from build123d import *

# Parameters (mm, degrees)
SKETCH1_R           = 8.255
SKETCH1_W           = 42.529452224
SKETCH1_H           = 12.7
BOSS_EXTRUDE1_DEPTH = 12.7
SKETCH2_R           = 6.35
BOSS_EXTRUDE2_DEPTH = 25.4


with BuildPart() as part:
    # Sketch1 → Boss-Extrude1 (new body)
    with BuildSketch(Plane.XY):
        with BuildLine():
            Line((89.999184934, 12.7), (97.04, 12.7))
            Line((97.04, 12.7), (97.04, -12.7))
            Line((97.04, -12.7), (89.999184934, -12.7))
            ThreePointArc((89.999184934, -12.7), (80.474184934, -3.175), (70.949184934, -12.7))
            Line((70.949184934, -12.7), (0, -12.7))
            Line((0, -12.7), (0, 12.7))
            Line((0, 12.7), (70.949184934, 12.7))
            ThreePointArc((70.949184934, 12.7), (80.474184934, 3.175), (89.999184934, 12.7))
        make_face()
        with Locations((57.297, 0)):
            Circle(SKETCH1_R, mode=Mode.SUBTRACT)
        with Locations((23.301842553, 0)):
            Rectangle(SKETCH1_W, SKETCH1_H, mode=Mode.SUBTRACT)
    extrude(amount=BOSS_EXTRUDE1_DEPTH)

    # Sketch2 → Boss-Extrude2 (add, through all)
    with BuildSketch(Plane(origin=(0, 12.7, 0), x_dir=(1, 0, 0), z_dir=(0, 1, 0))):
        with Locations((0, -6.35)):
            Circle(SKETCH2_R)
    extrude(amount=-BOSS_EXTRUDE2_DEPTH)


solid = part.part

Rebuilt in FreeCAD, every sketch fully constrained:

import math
import FreeCAD as App
import Part
import Sketcher
Q = App.Units.Quantity


def add_polygon(sketch, points):
    """Adds a closed chain of lines whose ends are joined by coincident constraints."""
    first, n = sketch.GeometryCount, len(points)
    for a, b in zip(points, points[1:] + points[:1]):
        sketch.addGeometry(Part.LineSegment(App.Vector(*a, 0), App.Vector(*b, 0)), False)
    for i in range(n):
        sketch.addConstraint(Sketcher.Constraint("Coincident", first + i, 2, first + (i + 1) % n, 1))

doc = App.newDocument("Part")
params = doc.addObject("Spreadsheet::Sheet", "Params")
for row, (alias, value) in enumerate([
    ("sketch1_diameter", "0.65 in"),
    ("sketch1_height", "1 in"),
    ("sketch1_height2", "0.5 in"),
    ("sketch1_radius", "0.375 in"),
    ("pad1_length", "0.5 in"),
    ("sketch2_diameter", "0.5 in"),
], start=1):
    params.set(f"A{row}", alias)
    params.set(f"B{row}", "=" + value)
    params.setAlias(f"B{row}", alias)

body = doc.addObject("PartDesign::Body", "Body")

# Sketch on XY plane
sketch1 = doc.addObject("Sketcher::SketchObject", "Sketch")
body.addObject(sketch1)
sketch1.AttachmentSupport = (doc.XY_Plane, [""])
sketch1.MapMode = "FlatFace"
sketch1.addGeometry(Part.LineSegment(App.Vector(97, 13, 0), App.Vector(90, 13, 0)), False)  # 0
sketch1.addGeometry(Part.ArcOfCircle(Part.Circle(App.Vector(80, 13, 0), App.Vector(0, 0, 1), 10), math.radians(180), math.radians(360)), False)  # 1
sketch1.addGeometry(Part.LineSegment(App.Vector(71, 13, 0), App.Vector(0, 13, 0)), False)  # 2
sketch1.addGeometry(Part.LineSegment(App.Vector(0, 13, 0), App.Vector(0, -13, 0)), False)  # 3
sketch1.addGeometry(Part.LineSegment(App.Vector(0, -13, 0), App.Vector(71, -13, 0)), False)  # 4
sketch1.addGeometry(Part.ArcOfCircle(Part.Circle(App.Vector(80, -13, 0), App.Vector(0, 0, 1), 10), math.radians(0), math.radians(180)), False)  # 5
sketch1.addGeometry(Part.LineSegment(App.Vector(90, -13, 0), App.Vector(97, -13, 0)), False)  # 6
sketch1.addGeometry(Part.LineSegment(App.Vector(97, -13, 0), App.Vector(97, 13, 0)), False)  # 7
sketch1.addGeometry(Part.Circle(App.Vector(57, 0, 0), App.Vector(0, 0, 1), 8), False)  # 8
add_polygon(sketch1, [(2, -6), (2, 6), (45, 6), (45, -6)])  # lines 9-12
sketch1.addConstraint([
    Sketcher.Constraint("Coincident", 0, 2, 1, 2),
    Sketcher.Constraint("Coincident", 1, 1, 2, 1),
    Sketcher.Constraint("Coincident", 2, 2, 3, 1),
    Sketcher.Constraint("Coincident", 3, 2, 4, 1),
    Sketcher.Constraint("Coincident", 4, 2, 5, 2),
    Sketcher.Constraint("Coincident", 5, 1, 6, 1),
    Sketcher.Constraint("Coincident", 6, 2, 7, 1),
    Sketcher.Constraint("Coincident", 7, 2, 0, 1),
    Sketcher.Constraint("Horizontal", 0),
    Sketcher.Constraint("Horizontal", 2),
    Sketcher.Constraint("Vertical", 3),
    Sketcher.Constraint("Horizontal", 4),
    Sketcher.Constraint("Horizontal", 6),
    Sketcher.Constraint("Vertical", 7),
    Sketcher.Constraint("Vertical", 9),
    Sketcher.Constraint("Horizontal", 10),
    Sketcher.Constraint("Vertical", 11),
    Sketcher.Constraint("Horizontal", 12),
    Sketcher.Constraint("Equal", 1, 5),
    Sketcher.Constraint("Symmetric", 2, 2, 3, 2, -1, 1),
    Sketcher.Constraint("Symmetric", 1, 3, 5, 3, -1),
    Sketcher.Constraint("PointOnObject", 8, 3, -1),
    Sketcher.Constraint("Horizontal", 1, 3, 0, 2),
    Sketcher.Constraint("Horizontal", 0, 2, 1, 1),
    Sketcher.Constraint("Horizontal", 4, 2, 5, 1),
    Sketcher.Constraint("Diameter", 8, Q("0.65 in")),
    Sketcher.Constraint("DistanceY", 3, 2, 3, 1, Q("1 in")),
    Sketcher.Constraint("DistanceY", 9, 1, 9, 2, Q("0.5 in")),
    Sketcher.Constraint("Radius", 1, Q("0.375 in")),
    Sketcher.Constraint("DistanceY", -1, 1, 9, 2, Q("0.25 in")),
    Sketcher.Constraint("DistanceX", -1, 1, 8, 3, Q("57.297 mm")),
    Sketcher.Constraint("DistanceX", -1, 1, 6, 2, Q("97.04 mm")),
    Sketcher.Constraint("DistanceX", 0, 2, 0, 1, Q("7.040815 mm")),
    Sketcher.Constraint("DistanceX", 10, 1, 10, 2, Q("42.529452 mm")),
    Sketcher.Constraint("DistanceX", -1, 1, 10, 2, Q("44.566569 mm")),
])
sketch1.setExpression("Constraints[29]", "Params.sketch1_diameter")
sketch1.setExpression("Constraints[30]", "Params.sketch1_height")
sketch1.setExpression("Constraints[31]", "Params.sketch1_height2")
sketch1.setExpression("Constraints[32]", "Params.sketch1_radius")
pad1 = doc.addObject("PartDesign::Pad", "Pad")
body.addObject(pad1)
pad1.Profile = sketch1
pad1.setExpression("Length", "Params.pad1_length")

# Sketch on XZ plane
sketch2 = doc.addObject("Sketcher::SketchObject", "Sketch001")
body.addObject(sketch2)
sketch2.AttachmentSupport = (doc.XZ_Plane, [""])
sketch2.MapMode = "FlatFace"
sketch2.AttachmentOffset = App.Placement(App.Vector(0, 0, -0.5 * 25.4), App.Rotation())
sketch2.addGeometry(Part.Circle(App.Vector(0, 6, 0), App.Vector(0, 0, 1), 6), False)
sketch2.addConstraint([
    Sketcher.Constraint("PointOnObject", 0, 3, -2),
    Sketcher.Constraint("Diameter", 0, Q("0.5 in")),
    Sketcher.Constraint("DistanceY", -1, 1, 0, 3, Q("0.25 in")),
])
sketch2.setExpression("Constraints[1]", "Params.sketch2_diameter")
pad2 = doc.addObject("PartDesign::Pad", "Pad001")
body.addObject(pad2)
pad2.Profile = sketch2
pad2.Type = "UpToLast"

doc.recompute()
